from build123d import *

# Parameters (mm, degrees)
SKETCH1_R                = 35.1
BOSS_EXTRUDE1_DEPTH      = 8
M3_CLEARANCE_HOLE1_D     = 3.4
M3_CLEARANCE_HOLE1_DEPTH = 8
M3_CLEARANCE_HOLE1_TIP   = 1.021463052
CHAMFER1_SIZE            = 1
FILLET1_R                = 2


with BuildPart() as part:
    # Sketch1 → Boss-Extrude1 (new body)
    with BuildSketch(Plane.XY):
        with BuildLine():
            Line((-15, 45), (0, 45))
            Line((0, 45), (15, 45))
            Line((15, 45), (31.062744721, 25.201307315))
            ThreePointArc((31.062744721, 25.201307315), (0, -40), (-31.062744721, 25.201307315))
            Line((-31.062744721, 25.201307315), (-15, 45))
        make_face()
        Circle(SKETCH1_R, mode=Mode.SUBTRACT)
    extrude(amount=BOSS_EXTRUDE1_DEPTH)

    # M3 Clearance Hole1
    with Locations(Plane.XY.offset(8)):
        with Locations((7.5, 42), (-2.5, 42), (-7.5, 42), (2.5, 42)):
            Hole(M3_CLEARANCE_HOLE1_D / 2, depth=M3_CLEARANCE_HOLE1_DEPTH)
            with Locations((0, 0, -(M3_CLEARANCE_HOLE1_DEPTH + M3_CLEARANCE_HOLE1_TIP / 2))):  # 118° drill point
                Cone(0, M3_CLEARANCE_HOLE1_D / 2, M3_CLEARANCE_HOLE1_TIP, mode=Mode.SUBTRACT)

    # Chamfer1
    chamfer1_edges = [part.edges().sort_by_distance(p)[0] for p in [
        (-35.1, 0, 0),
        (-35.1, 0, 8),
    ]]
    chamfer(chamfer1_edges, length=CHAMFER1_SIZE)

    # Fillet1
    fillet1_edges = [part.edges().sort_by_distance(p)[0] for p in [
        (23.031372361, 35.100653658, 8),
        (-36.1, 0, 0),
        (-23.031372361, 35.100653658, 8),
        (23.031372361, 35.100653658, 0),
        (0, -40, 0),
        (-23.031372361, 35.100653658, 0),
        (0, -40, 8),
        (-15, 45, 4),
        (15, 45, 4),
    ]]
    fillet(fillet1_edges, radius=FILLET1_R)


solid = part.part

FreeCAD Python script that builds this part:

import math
import FreeCAD as App
import Part
import Sketcher


def edges_at(feature, points):
    """Names of the edges that pass closest to the given points."""
    edges = feature.Shape.Edges
    near = lambda p: min(range(len(edges)), key=lambda i: edges[i].distToShape(Part.Vertex(*p))[0])
    return sorted({f"Edge{near(p) + 1}" for p in points})

doc = App.newDocument("Part")
body = doc.addObject("PartDesign::Body", "Body")

# Sketch on XY plane
sketch1 = body.newObject("Sketcher::SketchObject", "Sketch")
sketch1.AttachmentSupport = (doc.getObject("XY_Plane"), [""])
sketch1.MapMode = "FlatFace"
sketch1.addGeometry([
    Part.LineSegment(App.Vector(15, 45, 0), App.Vector(-15, 45, 0)),  # 0
    Part.LineSegment(App.Vector(-15, 45, 0), App.Vector(-31, 25, 0)),  # 1
    Part.ArcOfCircle(Part.Circle(App.Vector(0, 0, 0), App.Vector(0, 0, 1), 40), math.radians(141), math.radians(399)),  # 2
    Part.LineSegment(App.Vector(31, 25, 0), App.Vector(15, 45, 0)),  # 3
    Part.Circle(App.Vector(0, 0, 0), App.Vector(0, 0, 1), 35),  # 4
], False)
sketch1.addConstraint([
    Sketcher.Constraint("Coincident", 0, 2, 1, 1),
    Sketcher.Constraint("Tangent", 1, 2, 2, 1),
    Sketcher.Constraint("Tangent", 2, 2, 3, 1),
    Sketcher.Constraint("Coincident", 3, 2, 0, 1),
    Sketcher.Constraint("Horizontal", 0),
    Sketcher.Constraint("Coincident", 2, 3, -1, 1),
    Sketcher.Constraint("Coincident", 4, 3, -1, 1),
    Sketcher.Constraint("Horizontal", 1, 2, 2, 2),
    Sketcher.Constraint("Radius", 2, 40.0),
    Sketcher.Constraint("Diameter", 4, 70.2),
    Sketcher.Constraint("DistanceX", 0, 2, 0, 1, 30.0),
    Sketcher.Constraint("DistanceY", -1, 1, 0, 2, 45.0),
])
pad1 = body.newObject("PartDesign::Pad", "Pad")
pad1.Profile = sketch1
pad1.Length = 8

# Sketch on XY plane
sketch2 = body.newObject("Sketcher::SketchObject", "Sketch001")
sketch2.AttachmentSupport = (doc.getObject("XY_Plane"), [""])
sketch2.MapMode = "FlatFace"
sketch2.AttachmentOffset = App.Placement(App.Vector(0, 0, 8), App.Rotation())
sketch2.addGeometry([
    Part.Circle(App.Vector(7.5, 42, 0), App.Vector(0, 0, 1), 1.7),
    Part.Circle(App.Vector(-2.5, 42, 0), App.Vector(0, 0, 1), 1.7),
    Part.Circle(App.Vector(-7.5, 42, 0), App.Vector(0, 0, 1), 1.7),
    Part.Circle(App.Vector(2.5, 42, 0), App.Vector(0, 0, 1), 1.7),
], False)
sketch2.addConstraint([
    Sketcher.Constraint("Equal", 0, 1),
    Sketcher.Constraint("Equal", 1, 2),
    Sketcher.Constraint("Equal", 2, 3),
    Sketcher.Constraint("Symmetric", 0, 3, 2, 3, -2),
    Sketcher.Constraint("Symmetric", 1, 3, 3, 3, -2),
    Sketcher.Constraint("Horizontal", 0, 3, 1, 3),
    Sketcher.Constraint("Diameter", 0, 3.4),
    Sketcher.Constraint("DistanceY", -1, 1, 0, 3, 42.0),
    Sketcher.Constraint("DistanceX", 1, 3, 0, 3, 10.0),
    Sketcher.Constraint("DistanceX", 2, 3, 1, 3, 5.0),
])
doc.recompute()
hole = body.newObject("PartDesign::Hole", "Hole")
hole.Profile = sketch2
hole.ThreadType = "None"
hole.Diameter = 3.4
hole.DepthType = "Dimension"
hole.Depth = 8
hole.DrillPoint = "Angled"
hole.DrillPointAngle = 118
doc.recompute()

chamfer = body.newObject("PartDesign::Chamfer", "Chamfer")
chamfer.Base = (hole, edges_at(hole, [(-35.1, 0, 0), (-35.1, 0, 8)]))
chamfer.Size = 1
doc.recompute()

fillet = body.newObject("PartDesign::Fillet", "Fillet")
fillet.Base = (chamfer, edges_at(chamfer, [
    (23.031, 35.101, 8),
    (-36.1, 0, 0),
    (-23.031, 35.101, 8),
    (23.031, 35.101, 0),
    (0, -40, 0),
    (-23.031, 35.101, 0),
    (0, -40, 8),
    (-15, 45, 4),
    (15, 45, 4),
]))
fillet.Radius = 2

doc.recompute()
